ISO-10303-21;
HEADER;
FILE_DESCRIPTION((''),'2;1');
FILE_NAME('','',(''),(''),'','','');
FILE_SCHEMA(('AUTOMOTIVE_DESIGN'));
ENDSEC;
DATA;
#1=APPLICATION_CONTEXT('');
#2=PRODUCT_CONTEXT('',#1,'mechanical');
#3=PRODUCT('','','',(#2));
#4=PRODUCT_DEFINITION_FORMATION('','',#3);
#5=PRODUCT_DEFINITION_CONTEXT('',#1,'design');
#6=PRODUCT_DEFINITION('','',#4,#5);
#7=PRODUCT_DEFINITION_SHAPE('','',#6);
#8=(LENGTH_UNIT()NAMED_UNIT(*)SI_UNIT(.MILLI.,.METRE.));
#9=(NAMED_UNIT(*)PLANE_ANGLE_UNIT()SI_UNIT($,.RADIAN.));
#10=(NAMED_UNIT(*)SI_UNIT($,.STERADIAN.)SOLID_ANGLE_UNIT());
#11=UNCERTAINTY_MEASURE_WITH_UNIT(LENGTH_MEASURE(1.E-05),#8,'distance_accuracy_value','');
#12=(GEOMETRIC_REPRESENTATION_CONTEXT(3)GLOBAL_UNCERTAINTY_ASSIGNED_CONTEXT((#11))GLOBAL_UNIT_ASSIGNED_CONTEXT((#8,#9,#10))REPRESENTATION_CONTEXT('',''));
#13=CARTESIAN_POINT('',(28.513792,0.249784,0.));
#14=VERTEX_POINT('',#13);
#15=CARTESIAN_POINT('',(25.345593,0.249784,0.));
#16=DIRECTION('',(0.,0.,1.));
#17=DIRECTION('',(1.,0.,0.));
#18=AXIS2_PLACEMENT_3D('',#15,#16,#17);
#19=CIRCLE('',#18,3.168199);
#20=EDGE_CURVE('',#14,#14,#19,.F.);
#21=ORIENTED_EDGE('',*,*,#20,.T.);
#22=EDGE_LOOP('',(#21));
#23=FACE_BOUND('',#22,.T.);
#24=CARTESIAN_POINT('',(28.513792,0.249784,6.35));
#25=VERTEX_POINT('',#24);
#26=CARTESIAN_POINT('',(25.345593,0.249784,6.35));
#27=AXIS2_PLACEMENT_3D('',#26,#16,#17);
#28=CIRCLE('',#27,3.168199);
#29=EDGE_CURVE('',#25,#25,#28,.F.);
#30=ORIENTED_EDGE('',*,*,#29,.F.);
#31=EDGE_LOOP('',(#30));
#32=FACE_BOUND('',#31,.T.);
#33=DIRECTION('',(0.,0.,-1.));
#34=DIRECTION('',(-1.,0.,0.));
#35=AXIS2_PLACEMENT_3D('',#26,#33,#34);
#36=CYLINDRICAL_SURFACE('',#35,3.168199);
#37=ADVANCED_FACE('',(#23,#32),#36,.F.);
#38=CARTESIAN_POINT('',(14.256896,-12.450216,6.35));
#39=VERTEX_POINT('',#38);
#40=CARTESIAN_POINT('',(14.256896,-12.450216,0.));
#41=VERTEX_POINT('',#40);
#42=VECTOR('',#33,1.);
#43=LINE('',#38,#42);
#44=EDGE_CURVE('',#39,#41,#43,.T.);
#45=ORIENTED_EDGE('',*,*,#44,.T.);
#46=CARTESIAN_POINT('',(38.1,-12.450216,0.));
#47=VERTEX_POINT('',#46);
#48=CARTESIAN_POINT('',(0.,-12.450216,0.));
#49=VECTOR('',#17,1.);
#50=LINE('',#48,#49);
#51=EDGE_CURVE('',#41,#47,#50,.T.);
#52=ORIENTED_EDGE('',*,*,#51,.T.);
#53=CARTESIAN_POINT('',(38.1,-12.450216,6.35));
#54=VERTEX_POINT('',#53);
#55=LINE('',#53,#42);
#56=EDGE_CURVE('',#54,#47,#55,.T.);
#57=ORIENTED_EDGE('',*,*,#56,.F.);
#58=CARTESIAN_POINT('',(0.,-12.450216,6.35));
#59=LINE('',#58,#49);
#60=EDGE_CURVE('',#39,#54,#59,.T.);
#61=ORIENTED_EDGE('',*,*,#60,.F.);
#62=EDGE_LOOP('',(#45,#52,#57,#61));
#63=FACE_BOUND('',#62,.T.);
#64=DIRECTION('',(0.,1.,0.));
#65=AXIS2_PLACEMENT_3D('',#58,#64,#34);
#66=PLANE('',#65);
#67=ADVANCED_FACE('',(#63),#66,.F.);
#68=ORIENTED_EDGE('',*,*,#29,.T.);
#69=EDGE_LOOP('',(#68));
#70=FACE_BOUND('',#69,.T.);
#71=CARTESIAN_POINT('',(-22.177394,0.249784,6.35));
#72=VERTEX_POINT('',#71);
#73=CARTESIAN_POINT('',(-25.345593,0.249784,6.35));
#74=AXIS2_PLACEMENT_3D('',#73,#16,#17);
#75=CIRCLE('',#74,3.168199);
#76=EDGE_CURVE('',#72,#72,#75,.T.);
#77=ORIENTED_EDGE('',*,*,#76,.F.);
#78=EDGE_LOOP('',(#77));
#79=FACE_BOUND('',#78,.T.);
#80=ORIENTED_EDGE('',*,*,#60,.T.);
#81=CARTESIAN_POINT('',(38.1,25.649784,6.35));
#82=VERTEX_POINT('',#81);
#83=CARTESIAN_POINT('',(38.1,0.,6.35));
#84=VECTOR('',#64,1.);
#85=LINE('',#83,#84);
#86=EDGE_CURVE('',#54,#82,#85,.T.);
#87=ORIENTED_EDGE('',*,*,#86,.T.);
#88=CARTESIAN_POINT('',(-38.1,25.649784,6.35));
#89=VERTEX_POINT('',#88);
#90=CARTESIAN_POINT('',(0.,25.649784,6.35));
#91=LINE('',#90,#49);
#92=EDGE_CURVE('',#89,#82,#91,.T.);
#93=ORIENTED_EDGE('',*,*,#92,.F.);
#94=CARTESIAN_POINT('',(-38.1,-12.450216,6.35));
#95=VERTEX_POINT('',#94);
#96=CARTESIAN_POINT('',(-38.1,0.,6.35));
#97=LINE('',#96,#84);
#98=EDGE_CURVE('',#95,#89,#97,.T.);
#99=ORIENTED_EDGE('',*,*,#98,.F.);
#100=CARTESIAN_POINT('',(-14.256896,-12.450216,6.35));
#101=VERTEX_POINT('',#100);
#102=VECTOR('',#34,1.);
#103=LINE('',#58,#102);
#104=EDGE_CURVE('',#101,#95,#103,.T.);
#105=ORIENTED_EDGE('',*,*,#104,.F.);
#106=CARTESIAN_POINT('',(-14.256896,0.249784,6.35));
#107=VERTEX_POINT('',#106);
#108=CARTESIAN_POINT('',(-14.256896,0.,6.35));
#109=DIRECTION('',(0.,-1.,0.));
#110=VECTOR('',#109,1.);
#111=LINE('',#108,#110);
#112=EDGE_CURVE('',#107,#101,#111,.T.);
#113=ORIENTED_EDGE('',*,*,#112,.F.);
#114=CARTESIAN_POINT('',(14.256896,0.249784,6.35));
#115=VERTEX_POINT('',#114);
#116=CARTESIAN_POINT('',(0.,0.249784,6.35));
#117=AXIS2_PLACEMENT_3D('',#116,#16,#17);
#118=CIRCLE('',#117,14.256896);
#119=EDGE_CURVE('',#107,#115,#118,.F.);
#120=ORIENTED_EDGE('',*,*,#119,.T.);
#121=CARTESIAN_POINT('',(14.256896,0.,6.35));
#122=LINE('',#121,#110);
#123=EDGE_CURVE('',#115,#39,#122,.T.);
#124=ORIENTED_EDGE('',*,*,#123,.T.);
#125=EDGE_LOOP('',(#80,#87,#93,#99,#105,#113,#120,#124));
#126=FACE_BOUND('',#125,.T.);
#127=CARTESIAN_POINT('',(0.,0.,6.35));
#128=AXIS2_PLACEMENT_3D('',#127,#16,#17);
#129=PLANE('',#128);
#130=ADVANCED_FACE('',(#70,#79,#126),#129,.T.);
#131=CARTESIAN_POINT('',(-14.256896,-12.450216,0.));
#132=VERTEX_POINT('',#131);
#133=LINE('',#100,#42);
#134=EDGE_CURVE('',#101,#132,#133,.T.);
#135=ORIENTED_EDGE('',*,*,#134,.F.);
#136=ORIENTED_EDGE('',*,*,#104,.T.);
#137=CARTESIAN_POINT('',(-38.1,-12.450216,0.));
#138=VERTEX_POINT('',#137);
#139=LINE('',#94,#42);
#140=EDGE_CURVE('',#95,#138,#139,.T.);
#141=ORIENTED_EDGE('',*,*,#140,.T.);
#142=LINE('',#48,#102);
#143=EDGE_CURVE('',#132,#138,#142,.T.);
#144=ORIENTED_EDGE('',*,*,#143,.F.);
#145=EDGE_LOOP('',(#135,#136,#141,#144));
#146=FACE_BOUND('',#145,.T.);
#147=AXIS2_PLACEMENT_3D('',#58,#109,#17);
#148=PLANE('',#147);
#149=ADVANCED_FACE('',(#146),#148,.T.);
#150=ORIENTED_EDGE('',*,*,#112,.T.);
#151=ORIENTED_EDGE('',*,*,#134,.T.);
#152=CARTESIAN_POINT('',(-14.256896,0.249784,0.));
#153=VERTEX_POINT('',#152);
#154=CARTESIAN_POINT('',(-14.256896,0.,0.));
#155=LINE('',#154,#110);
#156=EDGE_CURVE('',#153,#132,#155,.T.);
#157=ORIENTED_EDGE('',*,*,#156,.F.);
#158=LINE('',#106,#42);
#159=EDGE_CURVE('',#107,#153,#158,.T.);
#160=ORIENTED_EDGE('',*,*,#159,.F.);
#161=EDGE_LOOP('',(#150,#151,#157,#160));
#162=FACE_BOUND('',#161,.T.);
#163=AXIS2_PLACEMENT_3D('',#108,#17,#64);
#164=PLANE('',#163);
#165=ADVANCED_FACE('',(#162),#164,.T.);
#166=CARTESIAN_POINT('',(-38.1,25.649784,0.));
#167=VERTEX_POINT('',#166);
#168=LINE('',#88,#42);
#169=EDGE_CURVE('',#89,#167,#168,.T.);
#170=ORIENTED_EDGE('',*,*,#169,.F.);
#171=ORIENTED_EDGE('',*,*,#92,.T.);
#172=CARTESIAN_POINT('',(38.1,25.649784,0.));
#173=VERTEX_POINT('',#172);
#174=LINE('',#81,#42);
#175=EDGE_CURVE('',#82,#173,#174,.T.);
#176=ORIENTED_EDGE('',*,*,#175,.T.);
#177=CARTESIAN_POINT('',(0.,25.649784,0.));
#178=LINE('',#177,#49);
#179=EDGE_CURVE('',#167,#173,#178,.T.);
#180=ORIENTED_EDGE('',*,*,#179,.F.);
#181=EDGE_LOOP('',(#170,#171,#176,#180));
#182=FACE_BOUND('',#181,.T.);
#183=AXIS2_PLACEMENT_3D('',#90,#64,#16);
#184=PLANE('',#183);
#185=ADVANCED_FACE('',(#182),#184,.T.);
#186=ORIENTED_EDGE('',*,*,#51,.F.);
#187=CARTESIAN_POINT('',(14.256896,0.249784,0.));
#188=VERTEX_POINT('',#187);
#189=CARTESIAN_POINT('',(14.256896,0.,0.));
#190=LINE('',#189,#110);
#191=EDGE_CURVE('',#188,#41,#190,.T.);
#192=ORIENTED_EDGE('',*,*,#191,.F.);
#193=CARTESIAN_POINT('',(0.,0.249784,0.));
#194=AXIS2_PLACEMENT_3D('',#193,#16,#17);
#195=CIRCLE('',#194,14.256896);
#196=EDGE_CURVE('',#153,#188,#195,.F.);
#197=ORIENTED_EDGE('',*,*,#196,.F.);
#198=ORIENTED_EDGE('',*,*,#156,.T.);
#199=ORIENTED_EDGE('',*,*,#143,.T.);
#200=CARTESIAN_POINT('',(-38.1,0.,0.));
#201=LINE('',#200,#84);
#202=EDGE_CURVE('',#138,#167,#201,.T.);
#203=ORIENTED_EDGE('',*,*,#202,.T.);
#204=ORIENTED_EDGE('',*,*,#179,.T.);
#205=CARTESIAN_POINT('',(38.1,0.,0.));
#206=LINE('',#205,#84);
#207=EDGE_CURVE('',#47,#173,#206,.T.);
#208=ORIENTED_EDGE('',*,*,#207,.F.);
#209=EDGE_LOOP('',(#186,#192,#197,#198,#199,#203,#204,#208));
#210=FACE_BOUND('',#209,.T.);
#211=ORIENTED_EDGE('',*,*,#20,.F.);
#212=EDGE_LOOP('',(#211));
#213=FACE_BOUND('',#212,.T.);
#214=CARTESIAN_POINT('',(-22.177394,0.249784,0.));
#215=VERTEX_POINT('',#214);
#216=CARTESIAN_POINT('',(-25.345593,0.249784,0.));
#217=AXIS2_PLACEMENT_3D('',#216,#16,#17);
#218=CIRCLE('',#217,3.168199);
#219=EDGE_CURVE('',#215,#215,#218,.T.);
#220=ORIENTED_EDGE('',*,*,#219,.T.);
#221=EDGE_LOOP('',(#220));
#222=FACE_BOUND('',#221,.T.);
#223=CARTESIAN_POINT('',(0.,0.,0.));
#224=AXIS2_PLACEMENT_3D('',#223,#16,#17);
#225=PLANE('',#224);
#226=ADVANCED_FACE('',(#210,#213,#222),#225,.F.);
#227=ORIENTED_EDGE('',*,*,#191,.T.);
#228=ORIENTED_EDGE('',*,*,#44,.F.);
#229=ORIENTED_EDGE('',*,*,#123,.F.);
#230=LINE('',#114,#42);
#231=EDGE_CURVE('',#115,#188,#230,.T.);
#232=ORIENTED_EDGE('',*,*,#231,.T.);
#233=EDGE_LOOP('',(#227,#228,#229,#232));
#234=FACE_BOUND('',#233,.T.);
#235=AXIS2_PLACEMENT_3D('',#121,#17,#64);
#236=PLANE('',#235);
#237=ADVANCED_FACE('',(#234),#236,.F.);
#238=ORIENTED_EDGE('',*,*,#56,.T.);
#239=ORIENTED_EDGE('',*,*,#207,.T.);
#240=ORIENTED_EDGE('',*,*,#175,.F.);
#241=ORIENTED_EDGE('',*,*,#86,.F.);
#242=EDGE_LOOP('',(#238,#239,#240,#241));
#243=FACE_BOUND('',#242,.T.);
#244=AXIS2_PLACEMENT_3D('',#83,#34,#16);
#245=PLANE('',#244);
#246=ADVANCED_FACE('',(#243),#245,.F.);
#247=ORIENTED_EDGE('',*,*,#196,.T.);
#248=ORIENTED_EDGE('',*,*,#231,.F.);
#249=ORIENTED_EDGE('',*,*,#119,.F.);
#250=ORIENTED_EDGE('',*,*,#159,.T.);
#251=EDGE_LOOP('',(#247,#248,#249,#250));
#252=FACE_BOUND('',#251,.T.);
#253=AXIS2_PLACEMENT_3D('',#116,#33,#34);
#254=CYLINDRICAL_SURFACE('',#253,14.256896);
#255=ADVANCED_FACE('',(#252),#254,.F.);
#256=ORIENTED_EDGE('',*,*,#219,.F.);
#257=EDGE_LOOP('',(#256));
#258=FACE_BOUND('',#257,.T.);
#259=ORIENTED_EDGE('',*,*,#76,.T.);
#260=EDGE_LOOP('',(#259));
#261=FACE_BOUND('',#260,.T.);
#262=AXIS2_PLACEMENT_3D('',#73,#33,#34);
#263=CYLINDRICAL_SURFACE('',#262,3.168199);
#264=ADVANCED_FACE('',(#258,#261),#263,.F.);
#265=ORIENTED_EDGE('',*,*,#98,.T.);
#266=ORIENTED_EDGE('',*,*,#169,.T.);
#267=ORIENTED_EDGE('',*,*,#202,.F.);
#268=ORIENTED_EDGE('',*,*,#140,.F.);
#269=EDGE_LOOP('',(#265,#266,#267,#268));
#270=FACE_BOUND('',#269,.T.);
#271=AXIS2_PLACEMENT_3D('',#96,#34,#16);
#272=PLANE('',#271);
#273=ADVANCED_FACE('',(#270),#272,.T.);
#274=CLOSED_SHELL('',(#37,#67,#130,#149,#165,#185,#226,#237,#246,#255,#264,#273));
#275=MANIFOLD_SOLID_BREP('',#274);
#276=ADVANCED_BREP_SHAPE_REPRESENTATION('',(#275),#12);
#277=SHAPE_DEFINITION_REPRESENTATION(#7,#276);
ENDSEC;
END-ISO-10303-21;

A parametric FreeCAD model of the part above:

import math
import FreeCAD as App
import Part
import Sketcher
from FreeCAD import Vector
Q = App.Units.Quantity

doc = App.newDocument("Part")
body = doc.addObject("PartDesign::Body", "Body")

# Sketch on XY plane
sketch1 = doc.addObject("Sketcher::SketchObject", "Sketch")
body.addObject(sketch1)
sketch1.AttachmentSupport = (doc.XY_Plane, [""])
sketch1.MapMode = "FlatFace"
sketch1.addGeometry([
    Part.LineSegment(Vector(-14.3, -12.5, 0), Vector(-14.3, 0.2, 0)),  # 0
    Part.ArcOfCircle(Part.Circle(Vector(0, 0.2, 0), Vector(0, 0, 1), 14.3), math.radians(0), math.radians(180)),  # 1
    Part.LineSegment(Vector(14.3, 0.2, 0), Vector(14.3, -12.5, 0)),  # 2
    Part.LineSegment(Vector(14.3, -12.5, 0), Vector(38.1, -12.5, 0)),  # 3
    Part.LineSegment(Vector(38.1, -12.5, 0), Vector(38.1, 25.6, 0)),  # 4
    Part.LineSegment(Vector(38.1, 25.6, 0), Vector(-38.1, 25.6, 0)),  # 5
    Part.LineSegment(Vector(-38.1, 25.6, 0), Vector(-38.1, -12.5, 0)),  # 6
    Part.LineSegment(Vector(-38.1, -12.5, 0), Vector(-14.3, -12.5, 0)),  # 7
    Part.Circle(Vector(25.3, 0.2, 0), Vector(0, 0, 1), 3.2),  # 8
    Part.Circle(Vector(-25.3, 0.2, 0), Vector(0, 0, 1), 3.2),  # 9
], False)
sketch1.addConstraint([
    Sketcher.Constraint("Tangent", 0, 2, 1, 2),
    Sketcher.Constraint("Tangent", 1, 1, 2, 1),
    Sketcher.Constraint("Coincident", 2, 2, 3, 1),
    Sketcher.Constraint("Coincident", 3, 2, 4, 1),
    Sketcher.Constraint("Coincident", 4, 2, 5, 1),
    Sketcher.Constraint("Coincident", 5, 2, 6, 1),
    Sketcher.Constraint("Coincident", 6, 2, 7, 1),
    Sketcher.Constraint("Coincident", 7, 2, 0, 1),
    Sketcher.Constraint("Vertical", 0),
    Sketcher.Constraint("Vertical", 2),
    Sketcher.Constraint("Horizontal", 3),
    Sketcher.Constraint("Vertical", 4),
    Sketcher.Constraint("Horizontal", 5),
    Sketcher.Constraint("Vertical", 6),
    Sketcher.Constraint("Horizontal", 7),
    Sketcher.Constraint("Equal", 8, 9),
    Sketcher.Constraint("Symmetric", 8, 3, 9, 3, -2),
    Sketcher.Constraint("Symmetric", 3, 2, 6, 2, -2),
    Sketcher.Constraint("PointOnObject", 1, 3, -2),
    Sketcher.Constraint("Horizontal", 1, 3, 8, 3),
    Sketcher.Constraint("DistanceX", 5, 2, 5, 1, Q("3 in")),
    Sketcher.Constraint("DistanceY", 0, 1, 0, 2, Q("0.5 in")),
    Sketcher.Constraint("DistanceY", 4, 1, 4, 2, Q("1.5 in")),
    Sketcher.Constraint("Diameter", 8, 6.336398),
    Sketcher.Constraint("Radius", 1, 14.256896),
    Sketcher.Constraint("DistanceX", 0, 2, 8, 3, 39.602488),
    Sketcher.Constraint("DistanceY", -1, 1, 1, 3, 0.249784),
])
pad1 = doc.addObject("PartDesign::Pad", "Pad")
body.addObject(pad1)
pad1.Profile = sketch1
pad1.Length = Q("0.25 in")

doc.recompute()
